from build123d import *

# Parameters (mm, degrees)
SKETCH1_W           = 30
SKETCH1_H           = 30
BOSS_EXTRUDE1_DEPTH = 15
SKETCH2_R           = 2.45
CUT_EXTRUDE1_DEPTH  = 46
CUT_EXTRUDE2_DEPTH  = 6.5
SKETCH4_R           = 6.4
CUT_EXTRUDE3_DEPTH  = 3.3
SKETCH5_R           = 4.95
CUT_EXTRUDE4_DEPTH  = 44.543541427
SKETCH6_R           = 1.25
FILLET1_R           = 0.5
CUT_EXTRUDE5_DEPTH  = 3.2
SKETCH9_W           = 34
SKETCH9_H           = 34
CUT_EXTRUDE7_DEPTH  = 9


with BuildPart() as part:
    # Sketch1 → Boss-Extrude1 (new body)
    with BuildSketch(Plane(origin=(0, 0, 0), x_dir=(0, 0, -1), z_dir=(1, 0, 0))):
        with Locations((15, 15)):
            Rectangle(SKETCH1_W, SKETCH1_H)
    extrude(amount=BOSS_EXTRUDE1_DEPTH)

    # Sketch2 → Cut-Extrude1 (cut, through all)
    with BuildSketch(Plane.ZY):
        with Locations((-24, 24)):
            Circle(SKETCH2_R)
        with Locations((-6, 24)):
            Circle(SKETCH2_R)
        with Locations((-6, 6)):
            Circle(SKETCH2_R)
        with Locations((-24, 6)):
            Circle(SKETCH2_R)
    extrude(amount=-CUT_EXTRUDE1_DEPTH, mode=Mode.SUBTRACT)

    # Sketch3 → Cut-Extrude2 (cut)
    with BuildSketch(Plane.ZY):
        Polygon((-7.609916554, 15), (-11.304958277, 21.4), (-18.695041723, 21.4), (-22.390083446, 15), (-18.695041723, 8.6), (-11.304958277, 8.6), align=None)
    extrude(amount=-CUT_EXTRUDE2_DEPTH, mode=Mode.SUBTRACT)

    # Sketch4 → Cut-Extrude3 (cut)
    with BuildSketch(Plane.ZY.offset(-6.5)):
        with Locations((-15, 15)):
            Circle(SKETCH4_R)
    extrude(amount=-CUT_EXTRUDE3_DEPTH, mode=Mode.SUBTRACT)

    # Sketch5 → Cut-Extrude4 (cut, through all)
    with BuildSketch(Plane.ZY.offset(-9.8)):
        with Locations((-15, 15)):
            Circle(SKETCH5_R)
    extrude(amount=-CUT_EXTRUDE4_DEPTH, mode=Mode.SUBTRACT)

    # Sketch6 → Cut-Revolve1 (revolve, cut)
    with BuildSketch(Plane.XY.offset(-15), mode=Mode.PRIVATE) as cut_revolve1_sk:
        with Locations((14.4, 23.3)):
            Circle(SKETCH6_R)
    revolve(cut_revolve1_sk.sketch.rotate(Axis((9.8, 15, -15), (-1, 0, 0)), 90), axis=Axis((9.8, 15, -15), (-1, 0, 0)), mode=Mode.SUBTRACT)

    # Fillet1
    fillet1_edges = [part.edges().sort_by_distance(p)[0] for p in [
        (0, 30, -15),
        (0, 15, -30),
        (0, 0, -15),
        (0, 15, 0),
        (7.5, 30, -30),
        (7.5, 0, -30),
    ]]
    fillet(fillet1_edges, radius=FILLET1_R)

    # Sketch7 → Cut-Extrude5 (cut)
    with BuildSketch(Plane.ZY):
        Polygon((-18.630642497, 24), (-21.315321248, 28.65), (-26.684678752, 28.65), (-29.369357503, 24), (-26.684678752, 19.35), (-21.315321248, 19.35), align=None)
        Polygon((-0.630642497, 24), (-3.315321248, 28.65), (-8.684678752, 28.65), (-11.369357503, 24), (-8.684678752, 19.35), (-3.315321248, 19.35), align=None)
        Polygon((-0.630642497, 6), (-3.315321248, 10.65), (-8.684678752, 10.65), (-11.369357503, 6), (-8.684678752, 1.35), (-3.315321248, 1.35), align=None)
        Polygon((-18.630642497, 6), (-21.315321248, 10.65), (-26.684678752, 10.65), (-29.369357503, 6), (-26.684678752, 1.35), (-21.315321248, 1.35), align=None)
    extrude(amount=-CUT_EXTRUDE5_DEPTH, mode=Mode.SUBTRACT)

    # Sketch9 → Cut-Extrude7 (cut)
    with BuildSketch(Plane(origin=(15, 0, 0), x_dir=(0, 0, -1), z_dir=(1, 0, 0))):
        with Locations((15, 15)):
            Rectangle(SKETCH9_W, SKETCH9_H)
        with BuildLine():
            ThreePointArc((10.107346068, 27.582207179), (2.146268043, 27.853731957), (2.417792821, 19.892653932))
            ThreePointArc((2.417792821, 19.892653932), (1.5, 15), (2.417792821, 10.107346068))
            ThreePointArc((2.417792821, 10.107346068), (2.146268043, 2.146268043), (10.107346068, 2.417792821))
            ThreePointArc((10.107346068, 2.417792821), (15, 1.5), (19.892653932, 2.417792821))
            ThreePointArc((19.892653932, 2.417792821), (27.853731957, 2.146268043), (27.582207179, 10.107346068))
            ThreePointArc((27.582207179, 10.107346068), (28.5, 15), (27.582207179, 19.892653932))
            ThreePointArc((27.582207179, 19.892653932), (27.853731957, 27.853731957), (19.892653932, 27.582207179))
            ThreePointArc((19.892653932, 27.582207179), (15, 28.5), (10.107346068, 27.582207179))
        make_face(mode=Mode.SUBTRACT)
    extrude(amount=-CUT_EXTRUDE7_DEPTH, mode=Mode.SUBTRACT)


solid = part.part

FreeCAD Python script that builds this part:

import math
import FreeCAD as App
import Part
import Sketcher
from FreeCAD import Vector
Q = App.Units.Quantity


def edges_at(feature, points):
    """Names of the edges that pass closest to the given points."""
    edges = feature.Shape.Edges
    near = lambda p: min(range(len(edges)), key=lambda i: edges[i].distToShape(Part.Vertex(*p))[0])
    return sorted({f"Edge{near(p) + 1}" for p in points})


def add_polygon(sketch, points):
    """Adds a closed chain of lines whose ends are joined by coincident constraints."""
    first, n = sketch.GeometryCount, len(points)
    for a, b in zip(points, points[1:] + points[:1]):
        sketch.addGeometry(Part.LineSegment(App.Vector(*a, 0), App.Vector(*b, 0)), False)
    for i in range(n):
        sketch.addConstraint(Sketcher.Constraint("Coincident", first + i, 2, first + (i + 1) % n, 1))

doc = App.newDocument("Part")
body = doc.addObject("PartDesign::Body", "Body")

# Sketch on YZ plane
sketch1 = body.newObject("Sketcher::SketchObject", "Sketch")
sketch1.AttachmentSupport = (doc.getObject("YZ_Plane"), [""])
sketch1.MapMode = "FlatFace"
add_polygon(sketch1, [(30, 0), (0, 0), (0, -30), (30, -30)])  # lines 0-3
sketch1.addConstraint([
    Sketcher.Constraint("Horizontal", 0),
    Sketcher.Constraint("Vertical", 1),
    Sketcher.Constraint("Horizontal", 2),
    Sketcher.Constraint("Vertical", 3),
    Sketcher.Constraint("Coincident", 0, 2, -1, 1),
    Sketcher.Constraint("Equal", 2, 1),
    Sketcher.Constraint("DistanceX", 0, 2, 0, 1, 30.0),
])
pad1 = body.newObject("PartDesign::Pad", "Pad")
pad1.Profile = sketch1
pad1.Length = 15

# Sketch on YZ plane
sketch2 = body.newObject("Sketcher::SketchObject", "Sketch001")
sketch2.AttachmentSupport = (doc.getObject("YZ_Plane"), [""])
sketch2.MapMode = "FlatFace"
sketch2.addGeometry([
    Part.Circle(Vector(24, -24, 0), Vector(0, 0, 1), 2.45),
    Part.Circle(Vector(24, -6, 0), Vector(0, 0, 1), 2.45),
    Part.Circle(Vector(6, -6, 0), Vector(0, 0, 1), 2.45),
    Part.Circle(Vector(6, -24, 0), Vector(0, 0, 1), 2.45),
], False)
sketch2.addConstraint([
    Sketcher.Constraint("Equal", 0, 1),
    Sketcher.Constraint("Equal", 1, 2),
    Sketcher.Constraint("Equal", 2, 3),
    Sketcher.Constraint("Horizontal", 1, 3, 2, 3),
    Sketcher.Constraint("Horizontal", 0, 3, 3, 3),
    Sketcher.Constraint("Vertical", 0, 3, 1, 3),
    Sketcher.Constraint("Vertical", 2, 3, 3, 3),
    Sketcher.Constraint("Diameter", 0, 4.9),
    Sketcher.Constraint("DistanceX", -1, 1, 0, 3, 24.0),
    Sketcher.Constraint("DistanceY", 0, 3, -1, 1, 24.0),
    Sketcher.Constraint("DistanceY", 1, 3, -1, 1, 6.0),
    Sketcher.Constraint("DistanceX", -1, 1, 2, 3, 6.0),
])
pocket1 = body.newObject("PartDesign::Pocket", "Pocket")
pocket1.Profile = sketch2
pocket1.Type = "ThroughAll"
pocket1.Reversed = True

# Sketch on YZ plane
sketch3 = body.newObject("Sketcher::SketchObject", "Sketch002")
sketch3.AttachmentSupport = (doc.getObject("YZ_Plane"), [""])
sketch3.MapMode = "FlatFace"
add_polygon(sketch3, [(15, -7.609917), (21.4, -11.304958), (21.4, -18.695042), (15, -22.390083), (8.6, -18.695042), (8.6, -11.304958)])  # lines 0-5
sketch3.addConstraint([
    Sketcher.Constraint("Vertical", 1),
    Sketcher.Constraint("Vertical", 4),
    Sketcher.Constraint("Parallel", 0, 3),
    Sketcher.Constraint("Parallel", 2, 5),
    Sketcher.Constraint("Horizontal", 1, 2, 3, 2),
    Sketcher.Constraint("Horizontal", 0, 2, 4, 2),
    Sketcher.Constraint("Vertical", 2, 2, 5, 2),
    Sketcher.Constraint("Angle", 0, Q("-30 deg")),
    Sketcher.Constraint("DistanceX", -1, 1, 2, 2, 15.0),
    Sketcher.Constraint("DistanceX", -1, 1, 0, 2, 21.4),
    Sketcher.Constraint("DistanceY", 1, 2, 1, 1, 7.390083),
    Sketcher.Constraint("DistanceY", 0, 2, -1, 1, 11.304958),
])
pocket2 = body.newObject("PartDesign::Pocket", "Pocket001")
pocket2.Profile = sketch3
pocket2.Length = 6.5
pocket2.Reversed = True

# Sketch on YZ plane
sketch4 = body.newObject("Sketcher::SketchObject", "Sketch003")
sketch4.AttachmentSupport = (doc.getObject("YZ_Plane"), [""])
sketch4.MapMode = "FlatFace"
sketch4.AttachmentOffset = App.Placement(Vector(0, 0, 6.5), App.Rotation())
sketch4.addGeometry(Part.Circle(Vector(15, -15, 0), Vector(0, 0, 1), 6.4), False)
sketch4.addConstraint([
    Sketcher.Constraint("Diameter", 0, 12.8),
    Sketcher.Constraint("DistanceX", -1, 1, 0, 3, 15.0),
    Sketcher.Constraint("DistanceY", 0, 3, -1, 1, 15.0),
])
pocket3 = body.newObject("PartDesign::Pocket", "Pocket002")
pocket3.Profile = sketch4
pocket3.Length = 3.3
pocket3.Reversed = True

# Sketch on YZ plane
sketch5 = body.newObject("Sketcher::SketchObject", "Sketch004")
sketch5.AttachmentSupport = (doc.getObject("YZ_Plane"), [""])
sketch5.MapMode = "FlatFace"
sketch5.AttachmentOffset = App.Placement(Vector(0, 0, 9.8), App.Rotation())
sketch5.addGeometry(Part.Circle(Vector(15, -15, 0), Vector(0, 0, 1), 4.95), False)
sketch5.addConstraint([
    Sketcher.Constraint("Diameter", 0, 9.9),
    Sketcher.Constraint("DistanceX", -1, 1, 0, 3, 15.0),
    Sketcher.Constraint("DistanceY", 0, 3, -1, 1, 15.0),
])
pocket4 = body.newObject("PartDesign::Pocket", "Pocket003")
pocket4.Profile = sketch5
pocket4.Type = "ThroughAll"
pocket4.Reversed = True

# Sketch on XY plane
sketch6 = body.newObject("Sketcher::SketchObject", "Sketch005")
sketch6.AttachmentSupport = (doc.getObject("XY_Plane"), [""])
sketch6.MapMode = "FlatFace"
sketch6.AttachmentOffset = App.Placement(Vector(0, 0, -15), App.Rotation())
sketch6.addGeometry(Part.Circle(Vector(14.4, 23.3, 0), Vector(0, 0, 1), 1.25), False)
sketch6.addGeometry(Part.LineSegment(Vector(14.4, 15, 0), Vector(4.4, 15, 0)), True)  # axis
sketch6.addConstraint([
    Sketcher.Constraint("Horizontal", 1),
    Sketcher.Constraint("Vertical", 0, 3, 1, 1),
    Sketcher.Constraint("Diameter", 0, 2.5),
    Sketcher.Constraint("DistanceX", 1, 2, 1, 1, 10.0),
    Sketcher.Constraint("DistanceY", -1, 1, 1, 1, 15.0),
    Sketcher.Constraint("DistanceX", -1, 1, 0, 3, 14.4),
    Sketcher.Constraint("DistanceY", -1, 1, 0, 3, 23.3),
])
groove = body.newObject("PartDesign::Groove", "Groove")
groove.Profile = sketch6
groove.ReferenceAxis = (sketch6, ["Axis0"])
groove.Angle = 360
doc.recompute()

fillet = body.newObject("PartDesign::Fillet", "Fillet")
fillet.Base = (groove, edges_at(groove, [
    (0, 30, -15),
    (0, 15, -30),
    (0, 0, -15),
    (0, 15, 0),
    (7.5, 30, -30),
    (7.5, 0, -30),
]))
fillet.Radius = 0.5

# Sketch on YZ plane
sketch7 = body.newObject("Sketcher::SketchObject", "Sketch006")
sketch7.AttachmentSupport = (doc.getObject("YZ_Plane"), [""])
sketch7.MapMode = "FlatFace"
add_polygon(sketch7, [(24, -18.630642), (28.65, -21.315321), (28.65, -26.684679), (24, -29.369358), (19.35, -26.684679), (19.35, -21.315321)])  # lines 0-5
add_polygon(sketch7, [(24, -0.630642), (28.65, -3.315321), (28.65, -8.684679), (24, -11.369358), (19.35, -8.684679), (19.35, -3.315321)])  # lines 6-11
add_polygon(sketch7, [(6, -0.630642), (10.65, -3.315321), (10.65, -8.684679), (6, -11.369358), (1.35, -8.684679), (1.35, -3.315321)])  # lines 12-17
add_polygon(sketch7, [(6, -18.630642), (10.65, -21.315321), (10.65, -26.684679), (6, -29.369358), (1.35, -26.684679), (1.35, -21.315321)])  # lines 18-23
sketch7.addConstraint([
    Sketcher.Constraint("Vertical", 1),
    Sketcher.Constraint("Vertical", 4),
    Sketcher.Constraint("Vertical", 7),
    Sketcher.Constraint("Vertical", 10),
    Sketcher.Constraint("Vertical", 13),
    Sketcher.Constraint("Vertical", 16),
    Sketcher.Constraint("Vertical", 19),
    Sketcher.Constraint("Vertical", 22),
    Sketcher.Constraint("Parallel", 0, 3),
    Sketcher.Constraint("Parallel", 2, 5),
    Sketcher.Constraint("Parallel", 3, 6),
    Sketcher.Constraint("Parallel", 5, 8),
    Sketcher.Constraint("Parallel", 6, 9),
    Sketcher.Constraint("Parallel", 8, 11),
    Sketcher.Constraint("Parallel", 9, 12),
    Sketcher.Constraint("Parallel", 11, 14),
    Sketcher.Constraint("Parallel", 12, 15),
    Sketcher.Constraint("Parallel", 14, 17),
    Sketcher.Constraint("Parallel", 15, 18),
    Sketcher.Constraint("Parallel", 17, 20),
    Sketcher.Constraint("Parallel", 18, 21),
    Sketcher.Constraint("Parallel", 20, 23),
    Sketcher.Constraint("Horizontal", 1, 2, 3, 2),
    Sketcher.Constraint("Horizontal", 0, 2, 4, 2),
    Sketcher.Constraint("Horizontal", 7, 2, 9, 2),
    Sketcher.Constraint("Horizontal", 6, 2, 10, 2),
    Sketcher.Constraint("Horizontal", 10, 2, 12, 2),
    Sketcher.Constraint("Horizontal", 9, 2, 13, 2),
    Sketcher.Constraint("Horizontal", 8, 2, 14, 2),
    Sketcher.Constraint("Horizontal", 13, 2, 15, 2),
    Sketcher.Constraint("Horizontal", 12, 2, 16, 2),
    Sketcher.Constraint("Horizontal", 4, 2, 18, 2),
    Sketcher.Constraint("Horizontal", 3, 2, 19, 2),
    Sketcher.Constraint("Horizontal", 2, 2, 20, 2),
    Sketcher.Constraint("Horizontal", 19, 2, 21, 2),
    Sketcher.Constraint("Horizontal", 18, 2, 22, 2),
    Sketcher.Constraint("Vertical", 2, 2, 5, 2),
    Sketcher.Constraint("Vertical", 1, 2, 6, 2),
    Sketcher.Constraint("Vertical", 5, 2, 8, 2),
    Sketcher.Constraint("Vertical", 13, 2, 18, 2),
    Sketcher.Constraint("Equal", 4, 7),
    Sketcher.Constraint("Angle", 0, Q("-30 deg")),
    Sketcher.Constraint("DistanceX", -1, 1, 2, 2, 24.0),
    Sketcher.Constraint("DistanceX", -1, 1, 14, 2, 6.0),
    Sketcher.Constraint("DistanceY", 0, 2, 6, 2, 18.0),
    Sketcher.Constraint("DistanceX", 3, 2, 1, 2, 9.3),
    Sketcher.Constraint("DistanceY", 1, 2, 1, 1, 5.369358),
    Sketcher.Constraint("DistanceY", 0, 2, -1, 1, 21.315321),
])
pocket5 = body.newObject("PartDesign::Pocket", "Pocket004")
pocket5.Profile = sketch7
pocket5.Length = 3.2
pocket5.Reversed = True

# Sketch on YZ plane
sketch8 = body.newObject("Sketcher::SketchObject", "Sketch007")
sketch8.AttachmentSupport = (doc.getObject("YZ_Plane"), [""])
sketch8.MapMode = "FlatFace"
sketch8.AttachmentOffset = App.Placement(Vector(0, 0, 15), App.Rotation())
add_polygon(sketch8, [(32, 2), (-2, 2), (-2, -32), (32, -32)])  # lines 0-3
sketch8.addGeometry(Part.ArcOfCircle(Part.Circle(Vector(24, -6, 0), Vector(0, 0, 1), 5.45), math.radians(-48.906806), math.radians(138.906806)), False)  # 4
sketch8.addGeometry(Part.ArcOfCircle(Part.Circle(Vector(15, -15, 0), Vector(0, 0, 1), 13.5), math.radians(-21.248818), math.radians(21.248818)), False)  # 5
sketch8.addGeometry(Part.ArcOfCircle(Part.Circle(Vector(24, -24, 0), Vector(0, 0, 1), 5.45), math.radians(-138.906806), math.radians(48.906806)), False)  # 6
sketch8.addGeometry(Part.ArcOfCircle(Part.Circle(Vector(15, -15, 0), Vector(0, 0, 1), 13.5), math.radians(-111.248818), math.radians(-68.751182)), False)  # 7
sketch8.addGeometry(Part.ArcOfCircle(Part.Circle(Vector(6, -24, 0), Vector(0, 0, 1), 5.45), math.radians(131.093194), math.radians(318.906806)), False)  # 8
sketch8.addGeometry(Part.ArcOfCircle(Part.Circle(Vector(15, -15, 0), Vector(0, 0, 1), 13.5), math.radians(158.751182), math.radians(201.248818)), False)  # 9
sketch8.addGeometry(Part.ArcOfCircle(Part.Circle(Vector(6, -6, 0), Vector(0, 0, 1), 5.45), math.radians(41.093194), math.radians(228.906806)), False)  # 10
sketch8.addGeometry(Part.ArcOfCircle(Part.Circle(Vector(15, -15, 0), Vector(0, 0, 1), 13.5), math.radians(68.751182), math.radians(111.248818)), False)  # 11
sketch8.addConstraint([
    Sketcher.Constraint("Coincident", 4, 1, 5, 2),
    Sketcher.Constraint("Coincident", 5, 1, 6, 2),
    Sketcher.Constraint("Coincident", 6, 1, 7, 2),
    Sketcher.Constraint("Coincident", 7, 1, 8, 2),
    Sketcher.Constraint("Coincident", 8, 1, 9, 2),
    Sketcher.Constraint("Coincident", 9, 1, 10, 2),
    Sketcher.Constraint("Coincident", 10, 1, 11, 2),
    Sketcher.Constraint("Coincident", 11, 1, 4, 2),
    Sketcher.Constraint("Horizontal", 0),
    Sketcher.Constraint("Vertical", 1),
    Sketcher.Constraint("Horizontal", 2),
    Sketcher.Constraint("Vertical", 3),
    Sketcher.Constraint("Coincident", 7, 3, 5, 3),
    Sketcher.Constraint("Coincident", 9, 3, 5, 3),
    Sketcher.Constraint("Coincident", 11, 3, 5, 3),
    Sketcher.Constraint("Equal", 4, 6),
    Sketcher.Constraint("Equal", 5, 7),
    Sketcher.Constraint("Equal", 6, 8),
    Sketcher.Constraint("Equal", 7, 9),
    Sketcher.Constraint("Equal", 8, 10),
    Sketcher.Constraint("Equal", 9, 11),
    Sketcher.Constraint("Horizontal", 6, 3, 8, 3),
    Sketcher.Constraint("Horizontal", 4, 3, 10, 3),
    Sketcher.Constraint("Horizontal", 6, 1, 7, 1),
    Sketcher.Constraint("Horizontal", 4, 1, 9, 1),
    Sketcher.Constraint("Vertical", 4, 3, 6, 3),
    Sketcher.Constraint("Vertical", 4, 1, 5, 1),
    Sketcher.Constraint("Equal", 2, 1),
    Sketcher.Constraint("Radius", 5, 13.5),
    Sketcher.Constraint("DistanceX", 0, 2, 0, 1, 34.0),
    Sketcher.Constraint("Radius", 4, 5.45),
    Sketcher.Constraint("DistanceX", -1, 1, 4, 3, 24.0),
    Sketcher.Constraint("DistanceY", 4, 3, -1, 1, 6.0),
    Sketcher.Constraint("DistanceX", -1, 1, 5, 3, 15.0),
    Sketcher.Constraint("DistanceY", 5, 3, -1, 1, 15.0),
    Sketcher.Constraint("DistanceX", 0, 2, -1, 1, 2.0),
    Sketcher.Constraint("DistanceY", -1, 1, 0, 2, 2.0),
])
pocket6 = body.newObject("PartDesign::Pocket", "Pocket005")
pocket6.Profile = sketch8
pocket6.Length = 9

doc.recompute()
